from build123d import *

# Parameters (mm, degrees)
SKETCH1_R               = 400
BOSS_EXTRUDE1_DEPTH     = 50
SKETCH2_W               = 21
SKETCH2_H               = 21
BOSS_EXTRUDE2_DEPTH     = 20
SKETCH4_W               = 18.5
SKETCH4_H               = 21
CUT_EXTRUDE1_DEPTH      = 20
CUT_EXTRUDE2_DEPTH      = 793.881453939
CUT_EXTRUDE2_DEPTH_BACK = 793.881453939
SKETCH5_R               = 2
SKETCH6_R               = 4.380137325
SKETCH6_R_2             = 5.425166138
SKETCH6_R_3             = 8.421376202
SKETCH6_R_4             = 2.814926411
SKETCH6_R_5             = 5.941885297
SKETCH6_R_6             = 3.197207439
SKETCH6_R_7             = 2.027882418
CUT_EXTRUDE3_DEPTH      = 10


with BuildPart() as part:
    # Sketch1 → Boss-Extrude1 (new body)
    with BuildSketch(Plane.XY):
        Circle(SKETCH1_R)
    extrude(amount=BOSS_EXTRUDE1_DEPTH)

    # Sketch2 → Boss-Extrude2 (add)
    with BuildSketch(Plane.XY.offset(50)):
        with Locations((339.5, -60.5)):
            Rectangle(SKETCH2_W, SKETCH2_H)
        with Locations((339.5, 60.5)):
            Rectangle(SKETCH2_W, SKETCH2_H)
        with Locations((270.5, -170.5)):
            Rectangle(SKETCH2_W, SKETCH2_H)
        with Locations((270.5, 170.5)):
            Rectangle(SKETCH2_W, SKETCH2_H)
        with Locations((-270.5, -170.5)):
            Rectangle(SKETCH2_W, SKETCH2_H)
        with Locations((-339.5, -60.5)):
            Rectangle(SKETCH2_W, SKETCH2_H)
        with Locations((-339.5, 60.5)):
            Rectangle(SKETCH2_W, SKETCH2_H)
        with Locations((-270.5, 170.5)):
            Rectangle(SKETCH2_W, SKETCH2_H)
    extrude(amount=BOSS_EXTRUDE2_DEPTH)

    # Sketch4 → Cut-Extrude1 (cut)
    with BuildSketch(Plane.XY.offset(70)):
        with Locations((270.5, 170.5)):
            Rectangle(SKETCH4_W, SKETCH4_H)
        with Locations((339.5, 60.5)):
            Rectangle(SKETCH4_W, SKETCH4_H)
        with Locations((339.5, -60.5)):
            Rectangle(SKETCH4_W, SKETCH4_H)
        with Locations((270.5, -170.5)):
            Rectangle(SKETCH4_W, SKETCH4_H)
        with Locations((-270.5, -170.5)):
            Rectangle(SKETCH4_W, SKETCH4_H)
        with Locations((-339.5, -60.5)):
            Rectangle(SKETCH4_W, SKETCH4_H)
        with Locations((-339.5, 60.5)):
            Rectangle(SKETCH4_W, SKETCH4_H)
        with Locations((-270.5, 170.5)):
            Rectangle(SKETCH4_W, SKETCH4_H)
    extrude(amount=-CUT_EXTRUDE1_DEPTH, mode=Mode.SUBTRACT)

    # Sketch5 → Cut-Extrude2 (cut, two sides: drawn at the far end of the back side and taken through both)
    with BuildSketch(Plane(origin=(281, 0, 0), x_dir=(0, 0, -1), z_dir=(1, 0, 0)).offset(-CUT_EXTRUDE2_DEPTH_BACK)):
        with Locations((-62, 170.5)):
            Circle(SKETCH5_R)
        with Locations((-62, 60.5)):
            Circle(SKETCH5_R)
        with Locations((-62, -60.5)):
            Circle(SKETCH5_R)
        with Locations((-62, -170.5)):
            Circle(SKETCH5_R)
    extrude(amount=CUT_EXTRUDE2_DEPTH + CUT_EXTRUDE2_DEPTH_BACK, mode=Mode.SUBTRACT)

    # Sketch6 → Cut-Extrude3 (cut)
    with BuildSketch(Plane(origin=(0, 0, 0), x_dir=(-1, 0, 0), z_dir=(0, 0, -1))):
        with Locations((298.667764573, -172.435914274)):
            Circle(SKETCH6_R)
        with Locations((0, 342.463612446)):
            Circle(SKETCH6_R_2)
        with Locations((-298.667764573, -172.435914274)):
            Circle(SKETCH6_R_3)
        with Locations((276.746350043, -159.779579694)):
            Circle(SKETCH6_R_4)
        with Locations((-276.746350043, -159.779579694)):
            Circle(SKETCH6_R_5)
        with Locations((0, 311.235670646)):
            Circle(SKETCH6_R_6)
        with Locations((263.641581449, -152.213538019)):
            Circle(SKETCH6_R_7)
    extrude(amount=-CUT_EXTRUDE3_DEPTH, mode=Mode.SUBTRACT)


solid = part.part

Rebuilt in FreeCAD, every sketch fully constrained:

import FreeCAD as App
import Part
import Sketcher

V = App.Vector

doc = App.newDocument("Part")
body = doc.addObject("PartDesign::Body", "Body")

# Sketch on XY plane
sketch1 = body.newObject("Sketcher::SketchObject", "Sketch")
sketch1.AttachmentSupport = (doc.getObject("XY_Plane"), [""])
sketch1.MapMode = "FlatFace"
sketch1.addGeometry(Part.Circle(V(0, 0, 0), V(0, 0, 1), 400), False)
sketch1.addConstraint(Sketcher.Constraint("Coincident", 0, 3, -1, 1))
sketch1.addConstraint(Sketcher.Constraint("Diameter", 0, 800.0))
pad1 = body.newObject("PartDesign::Pad", "Pad")
pad1.Profile = sketch1
pad1.Length = 50

# Sketch on XY plane
sketch2 = body.newObject("Sketcher::SketchObject", "Sketch001")
sketch2.AttachmentSupport = (doc.getObject("XY_Plane"), [""])
sketch2.MapMode = "FlatFace"
sketch2.AttachmentOffset = App.Placement(V(0, 0, 50), App.Rotation())
sketch2.addGeometry(Part.LineSegment(V(329, -50, 0), V(329, -71, 0)), False)
sketch2.addGeometry(Part.LineSegment(V(329, -71, 0), V(350, -71, 0)), False)
sketch2.addGeometry(Part.LineSegment(V(350, -71, 0), V(350, -50, 0)), False)
sketch2.addGeometry(Part.LineSegment(V(350, -50, 0), V(329, -50, 0)), False)
sketch2.addGeometry(Part.LineSegment(V(329, 71, 0), V(329, 50, 0)), False)
sketch2.addGeometry(Part.LineSegment(V(329, 50, 0), V(350, 50, 0)), False)
sketch2.addGeometry(Part.LineSegment(V(350, 50, 0), V(350, 71, 0)), False)
sketch2.addGeometry(Part.LineSegment(V(350, 71, 0), V(329, 71, 0)), False)
sketch2.addGeometry(Part.LineSegment(V(260, -160, 0), V(260, -181, 0)), False)
sketch2.addGeometry(Part.LineSegment(V(260, -181, 0), V(281, -181, 0)), False)
sketch2.addGeometry(Part.LineSegment(V(281, -181, 0), V(281, -160, 0)), False)
sketch2.addGeometry(Part.LineSegment(V(281, -160, 0), V(260, -160, 0)), False)
sketch2.addGeometry(Part.LineSegment(V(260, 181, 0), V(260, 160, 0)), False)
sketch2.addGeometry(Part.LineSegment(V(260, 160, 0), V(281, 160, 0)), False)
sketch2.addGeometry(Part.LineSegment(V(281, 160, 0), V(281, 181, 0)), False)
sketch2.addGeometry(Part.LineSegment(V(281, 181, 0), V(260, 181, 0)), False)
sketch2.addGeometry(Part.LineSegment(V(-281, -160, 0), V(-281, -181, 0)), False)
sketch2.addGeometry(Part.LineSegment(V(-281, -181, 0), V(-260, -181, 0)), False)
sketch2.addGeometry(Part.LineSegment(V(-260, -181, 0), V(-260, -160, 0)), False)
sketch2.addGeometry(Part.LineSegment(V(-260, -160, 0), V(-281, -160, 0)), False)
sketch2.addGeometry(Part.LineSegment(V(-350, -50, 0), V(-350, -71, 0)), False)
sketch2.addGeometry(Part.LineSegment(V(-350, -71, 0), V(-329, -71, 0)), False)
sketch2.addGeometry(Part.LineSegment(V(-329, -71, 0), V(-329, -50, 0)), False)
sketch2.addGeometry(Part.LineSegment(V(-329, -50, 0), V(-350, -50, 0)), False)
sketch2.addGeometry(Part.LineSegment(V(-350, 71, 0), V(-350, 50, 0)), False)
sketch2.addGeometry(Part.LineSegment(V(-350, 50, 0), V(-329, 50, 0)), False)
sketch2.addGeometry(Part.LineSegment(V(-329, 50, 0), V(-329, 71, 0)), False)
sketch2.addGeometry(Part.LineSegment(V(-329, 71, 0), V(-350, 71, 0)), False)
sketch2.addGeometry(Part.LineSegment(V(-281, 181, 0), V(-281, 160, 0)), False)
sketch2.addGeometry(Part.LineSegment(V(-281, 160, 0), V(-260, 160, 0)), False)
sketch2.addGeometry(Part.LineSegment(V(-260, 160, 0), V(-260, 181, 0)), False)
sketch2.addGeometry(Part.LineSegment(V(-260, 181, 0), V(-281, 181, 0)), False)
sketch2.addConstraint(Sketcher.Constraint("Coincident", 0, 2, 1, 1))
sketch2.addConstraint(Sketcher.Constraint("Coincident", 1, 2, 2, 1))
sketch2.addConstraint(Sketcher.Constraint("Coincident", 2, 2, 3, 1))
sketch2.addConstraint(Sketcher.Constraint("Coincident", 3, 2, 0, 1))
sketch2.addConstraint(Sketcher.Constraint("Coincident", 4, 2, 5, 1))
sketch2.addConstraint(Sketcher.Constraint("Coincident", 5, 2, 6, 1))
sketch2.addConstraint(Sketcher.Constraint("Coincident", 6, 2, 7, 1))
sketch2.addConstraint(Sketcher.Constraint("Coincident", 7, 2, 4, 1))
sketch2.addConstraint(Sketcher.Constraint("Coincident", 8, 2, 9, 1))
sketch2.addConstraint(Sketcher.Constraint("Coincident", 9, 2, 10, 1))
sketch2.addConstraint(Sketcher.Constraint("Coincident", 10, 2, 11, 1))
sketch2.addConstraint(Sketcher.Constraint("Coincident", 11, 2, 8, 1))
sketch2.addConstraint(Sketcher.Constraint("Coincident", 12, 2, 13, 1))
sketch2.addConstraint(Sketcher.Constraint("Coincident", 13, 2, 14, 1))
sketch2.addConstraint(Sketcher.Constraint("Coincident", 14, 2, 15, 1))
sketch2.addConstraint(Sketcher.Constraint("Coincident", 15, 2, 12, 1))
sketch2.addConstraint(Sketcher.Constraint("Coincident", 16, 2, 17, 1))
sketch2.addConstraint(Sketcher.Constraint("Coincident", 17, 2, 18, 1))
sketch2.addConstraint(Sketcher.Constraint("Coincident", 18, 2, 19, 1))
sketch2.addConstraint(Sketcher.Constraint("Coincident", 19, 2, 16, 1))
sketch2.addConstraint(Sketcher.Constraint("Coincident", 20, 2, 21, 1))
sketch2.addConstraint(Sketcher.Constraint("Coincident", 21, 2, 22, 1))
sketch2.addConstraint(Sketcher.Constraint("Coincident", 22, 2, 23, 1))
sketch2.addConstraint(Sketcher.Constraint("Coincident", 23, 2, 20, 1))
sketch2.addConstraint(Sketcher.Constraint("Coincident", 24, 2, 25, 1))
sketch2.addConstraint(Sketcher.Constraint("Coincident", 25, 2, 26, 1))
sketch2.addConstraint(Sketcher.Constraint("Coincident", 26, 2, 27, 1))
sketch2.addConstraint(Sketcher.Constraint("Coincident", 27, 2, 24, 1))
sketch2.addConstraint(Sketcher.Constraint("Coincident", 28, 2, 29, 1))
sketch2.addConstraint(Sketcher.Constraint("Coincident", 29, 2, 30, 1))
sketch2.addConstraint(Sketcher.Constraint("Coincident", 30, 2, 31, 1))
sketch2.addConstraint(Sketcher.Constraint("Coincident", 31, 2, 28, 1))
sketch2.addConstraint(Sketcher.Constraint("Vertical", 0))
sketch2.addConstraint(Sketcher.Constraint("Horizontal", 1))
sketch2.addConstraint(Sketcher.Constraint("Vertical", 2))
sketch2.addConstraint(Sketcher.Constraint("Horizontal", 3))
sketch2.addConstraint(Sketcher.Constraint("Vertical", 4))
sketch2.addConstraint(Sketcher.Constraint("Horizontal", 5))
sketch2.addConstraint(Sketcher.Constraint("Vertical", 6))
sketch2.addConstraint(Sketcher.Constraint("Horizontal", 7))
sketch2.addConstraint(Sketcher.Constraint("Vertical", 8))
sketch2.addConstraint(Sketcher.Constraint("Horizontal", 9))
sketch2.addConstraint(Sketcher.Constraint("Vertical", 10))
sketch2.addConstraint(Sketcher.Constraint("Horizontal", 11))
sketch2.addConstraint(Sketcher.Constraint("Vertical", 12))
sketch2.addConstraint(Sketcher.Constraint("Horizontal", 13))
sketch2.addConstraint(Sketcher.Constraint("Vertical", 14))
sketch2.addConstraint(Sketcher.Constraint("Horizontal", 15))
sketch2.addConstraint(Sketcher.Constraint("Vertical", 16))
sketch2.addConstraint(Sketcher.Constraint("Horizontal", 17))
sketch2.addConstraint(Sketcher.Constraint("Vertical", 18))
sketch2.addConstraint(Sketcher.Constraint("Horizontal", 19))
sketch2.addConstraint(Sketcher.Constraint("Vertical", 20))
sketch2.addConstraint(Sketcher.Constraint("Horizontal", 21))
sketch2.addConstraint(Sketcher.Constraint("Vertical", 22))
sketch2.addConstraint(Sketcher.Constraint("Horizontal", 23))
sketch2.addConstraint(Sketcher.Constraint("Vertical", 24))
sketch2.addConstraint(Sketcher.Constraint("Horizontal", 25))
sketch2.addConstraint(Sketcher.Constraint("Vertical", 26))
sketch2.addConstraint(Sketcher.Constraint("Horizontal", 27))
sketch2.addConstraint(Sketcher.Constraint("Vertical", 28))
sketch2.addConstraint(Sketcher.Constraint("Horizontal", 29))
sketch2.addConstraint(Sketcher.Constraint("Vertical", 30))
sketch2.addConstraint(Sketcher.Constraint("Horizontal", 31))
sketch2.addConstraint(Sketcher.Constraint("Symmetric", 14, 2, 16, 2, -1, 1))
sketch2.addConstraint(Sketcher.Constraint("Symmetric", 12, 2, 18, 2, -1, 1))
sketch2.addConstraint(Sketcher.Constraint("Symmetric", 6, 2, 20, 2, -1, 1))
sketch2.addConstraint(Sketcher.Constraint("Symmetric", 4, 2, 22, 2, -1, 1))
sketch2.addConstraint(Sketcher.Constraint("Symmetric", 2, 2, 24, 2, -1, 1))
sketch2.addConstraint(Sketcher.Constraint("Symmetric", 0, 2, 26, 2, -1, 1))
sketch2.addConstraint(Sketcher.Constraint("Symmetric", 10, 2, 28, 2, -1, 1))
sketch2.addConstraint(Sketcher.Constraint("Symmetric", 8, 2, 30, 2, -1, 1))
sketch2.addConstraint(Sketcher.Constraint("Symmetric", 9, 2, 16, 2, -2))
sketch2.addConstraint(Sketcher.Constraint("Symmetric", 11, 2, 18, 2, -2))
sketch2.addConstraint(Sketcher.Constraint("Symmetric", 1, 2, 20, 2, -2))
sketch2.addConstraint(Sketcher.Constraint("Symmetric", 3, 2, 22, 2, -2))
sketch2.addConstraint(Sketcher.Constraint("Equal", 7, 9))
sketch2.addConstraint(Sketcher.Constraint("Equal", 31, 0))
sketch2.addConstraint(Sketcher.Constraint("Equal", 6, 8))
sketch2.addConstraint(Sketcher.Constraint("DistanceX", 1, 1, 1, 2, 21.0))
sketch2.addConstraint(Sketcher.Constraint("DistanceX", -1, 1, 0, 2, 329.0))
sketch2.addConstraint(Sketcher.Constraint("DistanceY", 0, 2, -1, 1, 71.0))
sketch2.addConstraint(Sketcher.Constraint("DistanceX", -1, 1, 8, 2, 260.0))
sketch2.addConstraint(Sketcher.Constraint("DistanceY", 8, 2, -1, 1, 181.0))
pad2 = body.newObject("PartDesign::Pad", "Pad001")
pad2.Profile = sketch2
pad2.Length = 20

# Sketch on XY plane
sketch3 = body.newObject("Sketcher::SketchObject", "Sketch002")
sketch3.AttachmentSupport = (doc.getObject("XY_Plane"), [""])
sketch3.MapMode = "FlatFace"
sketch3.AttachmentOffset = App.Placement(V(0, 0, 70), App.Rotation())
sketch3.addGeometry(Part.LineSegment(V(261.25, 181, 0), V(261.25, 160, 0)), False)
sketch3.addGeometry(Part.LineSegment(V(261.25, 160, 0), V(279.75, 160, 0)), False)
sketch3.addGeometry(Part.LineSegment(V(279.75, 160, 0), V(279.75, 181, 0)), False)
sketch3.addGeometry(Part.LineSegment(V(279.75, 181, 0), V(261.25, 181, 0)), False)
sketch3.addGeometry(Part.LineSegment(V(330.25, 71, 0), V(330.25, 50, 0)), False)
sketch3.addGeometry(Part.LineSegment(V(330.25, 50, 0), V(348.75, 50, 0)), False)
sketch3.addGeometry(Part.LineSegment(V(348.75, 50, 0), V(348.75, 71, 0)), False)
sketch3.addGeometry(Part.LineSegment(V(348.75, 71, 0), V(330.25, 71, 0)), False)
sketch3.addGeometry(Part.LineSegment(V(330.25, -50, 0), V(330.25, -71, 0)), False)
sketch3.addGeometry(Part.LineSegment(V(330.25, -71, 0), V(348.75, -71, 0)), False)
sketch3.addGeometry(Part.LineSegment(V(348.75, -71, 0), V(348.75, -50, 0)), False)
sketch3.addGeometry(Part.LineSegment(V(348.75, -50, 0), V(330.25, -50, 0)), False)
sketch3.addGeometry(Part.LineSegment(V(261.25, -160, 0), V(261.25, -181, 0)), False)
sketch3.addGeometry(Part.LineSegment(V(261.25, -181, 0), V(279.75, -181, 0)), False)
sketch3.addGeometry(Part.LineSegment(V(279.75, -181, 0), V(279.75, -160, 0)), False)
sketch3.addGeometry(Part.LineSegment(V(279.75, -160, 0), V(261.25, -160, 0)), False)
sketch3.addGeometry(Part.LineSegment(V(-279.75, -160, 0), V(-279.75, -181, 0)), False)
sketch3.addGeometry(Part.LineSegment(V(-279.75, -181, 0), V(-261.25, -181, 0)), False)
sketch3.addGeometry(Part.LineSegment(V(-261.25, -181, 0), V(-261.25, -160, 0)), False)
sketch3.addGeometry(Part.LineSegment(V(-261.25, -160, 0), V(-279.75, -160, 0)), False)
sketch3.addGeometry(Part.LineSegment(V(-348.75, -50, 0), V(-348.75, -71, 0)), False)
sketch3.addGeometry(Part.LineSegment(V(-348.75, -71, 0), V(-330.25, -71, 0)), False)
sketch3.addGeometry(Part.LineSegment(V(-330.25, -71, 0), V(-330.25, -50, 0)), False)
sketch3.addGeometry(Part.LineSegment(V(-330.25, -50, 0), V(-348.75, -50, 0)), False)
sketch3.addGeometry(Part.LineSegment(V(-348.75, 71, 0), V(-348.75, 50, 0)), False)
sketch3.addGeometry(Part.LineSegment(V(-348.75, 50, 0), V(-330.25, 50, 0)), False)
sketch3.addGeometry(Part.LineSegment(V(-330.25, 50, 0), V(-330.25, 71, 0)), False)
sketch3.addGeometry(Part.LineSegment(V(-330.25, 71, 0), V(-348.75, 71, 0)), False)
sketch3.addGeometry(Part.LineSegment(V(-279.75, 181, 0), V(-279.75, 160, 0)), False)
sketch3.addGeometry(Part.LineSegment(V(-279.75, 160, 0), V(-261.25, 160, 0)), False)
sketch3.addGeometry(Part.LineSegment(V(-261.25, 160, 0), V(-261.25, 181, 0)), False)
sketch3.addGeometry(Part.LineSegment(V(-261.25, 181, 0), V(-279.75, 181, 0)), False)
sketch3.addConstraint(Sketcher.Constraint("Coincident", 0, 2, 1, 1))
sketch3.addConstraint(Sketcher.Constraint("Coincident", 1, 2, 2, 1))
sketch3.addConstraint(Sketcher.Constraint("Coincident", 2, 2, 3, 1))
sketch3.addConstraint(Sketcher.Constraint("Coincident", 3, 2, 0, 1))
sketch3.addConstraint(Sketcher.Constraint("Coincident", 4, 2, 5, 1))
sketch3.addConstraint(Sketcher.Constraint("Coincident", 5, 2, 6, 1))
sketch3.addConstraint(Sketcher.Constraint("Coincident", 6, 2, 7, 1))
sketch3.addConstraint(Sketcher.Constraint("Coincident", 7, 2, 4, 1))
sketch3.addConstraint(Sketcher.Constraint("Coincident", 8, 2, 9, 1))
sketch3.addConstraint(Sketcher.Constraint("Coincident", 9, 2, 10, 1))
sketch3.addConstraint(Sketcher.Constraint("Coincident", 10, 2, 11, 1))
sketch3.addConstraint(Sketcher.Constraint("Coincident", 11, 2, 8, 1))
sketch3.addConstraint(Sketcher.Constraint("Coincident", 12, 2, 13, 1))
sketch3.addConstraint(Sketcher.Constraint("Coincident", 13, 2, 14, 1))
sketch3.addConstraint(Sketcher.Constraint("Coincident", 14, 2, 15, 1))
sketch3.addConstraint(Sketcher.Constraint("Coincident", 15, 2, 12, 1))
sketch3.addConstraint(Sketcher.Constraint("Coincident", 16, 2, 17, 1))
sketch3.addConstraint(Sketcher.Constraint("Coincident", 17, 2, 18, 1))
sketch3.addConstraint(Sketcher.Constraint("Coincident", 18, 2, 19, 1))
sketch3.addConstraint(Sketcher.Constraint("Coincident", 19, 2, 16, 1))
sketch3.addConstraint(Sketcher.Constraint("Coincident", 20, 2, 21, 1))
sketch3.addConstraint(Sketcher.Constraint("Coincident", 21, 2, 22, 1))
sketch3.addConstraint(Sketcher.Constraint("Coincident", 22, 2, 23, 1))
sketch3.addConstraint(Sketcher.Constraint("Coincident", 23, 2, 20, 1))
sketch3.addConstraint(Sketcher.Constraint("Coincident", 24, 2, 25, 1))
sketch3.addConstraint(Sketcher.Constraint("Coincident", 25, 2, 26, 1))
sketch3.addConstraint(Sketcher.Constraint("Coincident", 26, 2, 27, 1))
sketch3.addConstraint(Sketcher.Constraint("Coincident", 27, 2, 24, 1))
sketch3.addConstraint(Sketcher.Constraint("Coincident", 28, 2, 29, 1))
sketch3.addConstraint(Sketcher.Constraint("Coincident", 29, 2, 30, 1))
sketch3.addConstraint(Sketcher.Constraint("Coincident", 30, 2, 31, 1))
sketch3.addConstraint(Sketcher.Constraint("Coincident", 31, 2, 28, 1))
sketch3.addConstraint(Sketcher.Constraint("Vertical", 0))
sketch3.addConstraint(Sketcher.Constraint("Horizontal", 1))
sketch3.addConstraint(Sketcher.Constraint("Vertical", 2))
sketch3.addConstraint(Sketcher.Constraint("Horizontal", 3))
sketch3.addConstraint(Sketcher.Constraint("Vertical", 4))
sketch3.addConstraint(Sketcher.Constraint("Horizontal", 5))
sketch3.addConstraint(Sketcher.Constraint("Vertical", 6))
sketch3.addConstraint(Sketcher.Constraint("Horizontal", 7))
sketch3.addConstraint(Sketcher.Constraint("Vertical", 8))
sketch3.addConstraint(Sketcher.Constraint("Horizontal", 9))
sketch3.addConstraint(Sketcher.Constraint("Vertical", 10))
sketch3.addConstraint(Sketcher.Constraint("Horizontal", 11))
sketch3.addConstraint(Sketcher.Constraint("Vertical", 12))
sketch3.addConstraint(Sketcher.Constraint("Horizontal", 13))
sketch3.addConstraint(Sketcher.Constraint("Vertical", 14))
sketch3.addConstraint(Sketcher.Constraint("Horizontal", 15))
sketch3.addConstraint(Sketcher.Constraint("Vertical", 16))
sketch3.addConstraint(Sketcher.Constraint("Horizontal", 17))
sketch3.addConstraint(Sketcher.Constraint("Vertical", 18))
sketch3.addConstraint(Sketcher.Constraint("Horizontal", 19))
sketch3.addConstraint(Sketcher.Constraint("Vertical", 20))
sketch3.addConstraint(Sketcher.Constraint("Horizontal", 21))
sketch3.addConstraint(Sketcher.Constraint("Vertical", 22))
sketch3.addConstraint(Sketcher.Constraint("Horizontal", 23))
sketch3.addConstraint(Sketcher.Constraint("Vertical", 24))
sketch3.addConstraint(Sketcher.Constraint("Horizontal", 25))
sketch3.addConstraint(Sketcher.Constraint("Vertical", 26))
sketch3.addConstraint(Sketcher.Constraint("Horizontal", 27))
sketch3.addConstraint(Sketcher.Constraint("Vertical", 28))
sketch3.addConstraint(Sketcher.Constraint("Horizontal", 29))
sketch3.addConstraint(Sketcher.Constraint("Vertical", 30))
sketch3.addConstraint(Sketcher.Constraint("Horizontal", 31))
sketch3.addConstraint(Sketcher.Constraint("Symmetric", 2, 2, 16, 2, -1, 1))
sketch3.addConstraint(Sketcher.Constraint("Symmetric", 0, 2, 18, 2, -1, 1))
sketch3.addConstraint(Sketcher.Constraint("Symmetric", 6, 2, 20, 2, -1, 1))
sketch3.addConstraint(Sketcher.Constraint("Symmetric", 4, 2, 22, 2, -1, 1))
sketch3.addConstraint(Sketcher.Constraint("Symmetric", 10, 2, 24, 2, -1, 1))
sketch3.addConstraint(Sketcher.Constraint("Symmetric", 8, 2, 26, 2, -1, 1))
sketch3.addConstraint(Sketcher.Constraint("Symmetric", 14, 2, 28, 2, -1, 1))
sketch3.addConstraint(Sketcher.Constraint("Symmetric", 12, 2, 30, 2, -1, 1))
sketch3.addConstraint(Sketcher.Constraint("Symmetric", 13, 2, 16, 2, -2))
sketch3.addConstraint(Sketcher.Constraint("Symmetric", 15, 2, 18, 2, -2))
sketch3.addConstraint(Sketcher.Constraint("Symmetric", 9, 2, 20, 2, -2))
sketch3.addConstraint(Sketcher.Constraint("Symmetric", 11, 2, 22, 2, -2))
sketch3.addConstraint(Sketcher.Constraint("Equal", 3, 5))
sketch3.addConstraint(Sketcher.Constraint("Equal", 2, 4))
sketch3.addConstraint(Sketcher.Constraint("DistanceY", 0, 2, 0, 1, 21.0))
sketch3.addConstraint(Sketcher.Constraint("DistanceX", 1, 1, 1, 2, 18.5))
sketch3.addConstraint(Sketcher.Constraint("DistanceY", -1, 1, 0, 2, 160.0))
sketch3.addConstraint(Sketcher.Constraint("DistanceY", -1, 1, 4, 2, 50.0))
sketch3.addConstraint(Sketcher.Constraint("DistanceX", 0, 2, 4, 2, 69.0))
sketch3.addConstraint(Sketcher.Constraint("DistanceX", 16, 2, 12, 2, 541.0))
pocket1 = body.newObject("PartDesign::Pocket", "Pocket")
pocket1.Profile = sketch3
pocket1.Length = 20

# Sketch on YZ plane
sketch4 = body.newObject("Sketcher::SketchObject", "Sketch003")
sketch4.AttachmentSupport = (doc.getObject("YZ_Plane"), [""])
sketch4.MapMode = "FlatFace"
sketch4.AttachmentOffset = App.Placement(V(0, 0, 281), App.Rotation())
sketch4.addGeometry(Part.Circle(V(170.5, 62, 0), V(0, 0, 1), 2), False)
sketch4.addGeometry(Part.Circle(V(60.5, 62, 0), V(0, 0, 1), 2), False)
sketch4.addGeometry(Part.Circle(V(-60.5, 62, 0), V(0, 0, 1), 2), False)
sketch4.addGeometry(Part.Circle(V(-170.5, 62, 0), V(0, 0, 1), 2), False)
sketch4.addConstraint(Sketcher.Constraint("Equal", 0, 1))
sketch4.addConstraint(Sketcher.Constraint("Equal", 1, 2))
sketch4.addConstraint(Sketcher.Constraint("Equal", 2, 3))
sketch4.addConstraint(Sketcher.Constraint("Symmetric", 1, 3, 2, 3, -2))
sketch4.addConstraint(Sketcher.Constraint("Symmetric", 0, 3, 3, 3, -2))
sketch4.addConstraint(Sketcher.Constraint("Horizontal", 0, 3, 1, 3))
sketch4.addConstraint(Sketcher.Constraint("Diameter", 0, 4.0))
sketch4.addConstraint(Sketcher.Constraint("DistanceY", -1, 1, 0, 3, 62.0))
sketch4.addConstraint(Sketcher.Constraint("DistanceX", 1, 3, 0, 3, 110.0))
sketch4.addConstraint(Sketcher.Constraint("DistanceX", 2, 3, 1, 3, 121.0))
pocket2 = body.newObject("PartDesign::Pocket", "Pocket001")
pocket2.Profile = sketch4
pocket2.Type = "ThroughAll"
pocket2.Midplane = True

# Sketch on XY plane
sketch5 = body.newObject("Sketcher::SketchObject", "Sketch004")
sketch5.AttachmentSupport = (doc.getObject("XY_Plane"), [""])
sketch5.MapMode = "FlatFace"
sketch5.addGeometry(Part.Circle(V(-298.667765, -172.435914, 0), V(0, 0, 1), 4.380137), False)
sketch5.addGeometry(Part.Circle(V(0, 342.463612, 0), V(0, 0, 1), 5.425166), False)
sketch5.addGeometry(Part.Circle(V(298.667765, -172.435914, 0), V(0, 0, 1), 8.421376), False)
sketch5.addGeometry(Part.Circle(V(-276.74635, -159.77958, 0), V(0, 0, 1), 2.814926), False)
sketch5.addGeometry(Part.Circle(V(276.74635, -159.77958, 0), V(0, 0, 1), 5.941885), False)
sketch5.addGeometry(Part.Circle(V(0, 311.235671, 0), V(0, 0, 1), 3.197207), False)
sketch5.addGeometry(Part.Circle(V(-263.641581, -152.213538, 0), V(0, 0, 1), 2.027882), False)
sketch5.addConstraint(Sketcher.Constraint("Symmetric", 0, 3, 2, 3, -2))
sketch5.addConstraint(Sketcher.Constraint("Symmetric", 3, 3, 4, 3, -2))
sketch5.addConstraint(Sketcher.Constraint("PointOnObject", 1, 3, -2))
sketch5.addConstraint(Sketcher.Constraint("PointOnObject", 5, 3, -2))
sketch5.addConstraint(Sketcher.Constraint("Diameter", 4, 11.883771))
sketch5.addConstraint(Sketcher.Constraint("Diameter", 0, 8.760275))
sketch5.addConstraint(Sketcher.Constraint("Diameter", 1, 10.850332))
sketch5.addConstraint(Sketcher.Constraint("Diameter", 2, 16.842752))
sketch5.addConstraint(Sketcher.Constraint("Diameter", 3, 5.629853))
sketch5.addConstraint(Sketcher.Constraint("Diameter", 5, 6.394415))
sketch5.addConstraint(Sketcher.Constraint("Diameter", 6, 4.055765))
sketch5.addConstraint(Sketcher.Constraint("DistanceX", 3, 3, 4, 3, 553.4927))
sketch5.addConstraint(Sketcher.Constraint("DistanceY", 3, 3, -1, 1, 159.77958))
sketch5.addConstraint(Sketcher.Constraint("DistanceY", -1, 1, 5, 3, 311.235671))
sketch5.addConstraint(Sketcher.Constraint("DistanceX", 6, 3, -1, 1, 263.641581))
sketch5.addConstraint(Sketcher.Constraint("DistanceY", 6, 3, -1, 1, 152.213538))
sketch5.addConstraint(Sketcher.Constraint("DistanceX", 0, 3, 2, 3, 597.335529))
sketch5.addConstraint(Sketcher.Constraint("DistanceY", 5, 3, 1, 3, 31.227942))
sketch5.addConstraint(Sketcher.Constraint("DistanceY", 0, 3, -1, 1, 172.435914))
pocket3 = body.newObject("PartDesign::Pocket", "Pocket002")
pocket3.Profile = sketch5
pocket3.Length = 10
pocket3.Reversed = True

doc.recompute()
